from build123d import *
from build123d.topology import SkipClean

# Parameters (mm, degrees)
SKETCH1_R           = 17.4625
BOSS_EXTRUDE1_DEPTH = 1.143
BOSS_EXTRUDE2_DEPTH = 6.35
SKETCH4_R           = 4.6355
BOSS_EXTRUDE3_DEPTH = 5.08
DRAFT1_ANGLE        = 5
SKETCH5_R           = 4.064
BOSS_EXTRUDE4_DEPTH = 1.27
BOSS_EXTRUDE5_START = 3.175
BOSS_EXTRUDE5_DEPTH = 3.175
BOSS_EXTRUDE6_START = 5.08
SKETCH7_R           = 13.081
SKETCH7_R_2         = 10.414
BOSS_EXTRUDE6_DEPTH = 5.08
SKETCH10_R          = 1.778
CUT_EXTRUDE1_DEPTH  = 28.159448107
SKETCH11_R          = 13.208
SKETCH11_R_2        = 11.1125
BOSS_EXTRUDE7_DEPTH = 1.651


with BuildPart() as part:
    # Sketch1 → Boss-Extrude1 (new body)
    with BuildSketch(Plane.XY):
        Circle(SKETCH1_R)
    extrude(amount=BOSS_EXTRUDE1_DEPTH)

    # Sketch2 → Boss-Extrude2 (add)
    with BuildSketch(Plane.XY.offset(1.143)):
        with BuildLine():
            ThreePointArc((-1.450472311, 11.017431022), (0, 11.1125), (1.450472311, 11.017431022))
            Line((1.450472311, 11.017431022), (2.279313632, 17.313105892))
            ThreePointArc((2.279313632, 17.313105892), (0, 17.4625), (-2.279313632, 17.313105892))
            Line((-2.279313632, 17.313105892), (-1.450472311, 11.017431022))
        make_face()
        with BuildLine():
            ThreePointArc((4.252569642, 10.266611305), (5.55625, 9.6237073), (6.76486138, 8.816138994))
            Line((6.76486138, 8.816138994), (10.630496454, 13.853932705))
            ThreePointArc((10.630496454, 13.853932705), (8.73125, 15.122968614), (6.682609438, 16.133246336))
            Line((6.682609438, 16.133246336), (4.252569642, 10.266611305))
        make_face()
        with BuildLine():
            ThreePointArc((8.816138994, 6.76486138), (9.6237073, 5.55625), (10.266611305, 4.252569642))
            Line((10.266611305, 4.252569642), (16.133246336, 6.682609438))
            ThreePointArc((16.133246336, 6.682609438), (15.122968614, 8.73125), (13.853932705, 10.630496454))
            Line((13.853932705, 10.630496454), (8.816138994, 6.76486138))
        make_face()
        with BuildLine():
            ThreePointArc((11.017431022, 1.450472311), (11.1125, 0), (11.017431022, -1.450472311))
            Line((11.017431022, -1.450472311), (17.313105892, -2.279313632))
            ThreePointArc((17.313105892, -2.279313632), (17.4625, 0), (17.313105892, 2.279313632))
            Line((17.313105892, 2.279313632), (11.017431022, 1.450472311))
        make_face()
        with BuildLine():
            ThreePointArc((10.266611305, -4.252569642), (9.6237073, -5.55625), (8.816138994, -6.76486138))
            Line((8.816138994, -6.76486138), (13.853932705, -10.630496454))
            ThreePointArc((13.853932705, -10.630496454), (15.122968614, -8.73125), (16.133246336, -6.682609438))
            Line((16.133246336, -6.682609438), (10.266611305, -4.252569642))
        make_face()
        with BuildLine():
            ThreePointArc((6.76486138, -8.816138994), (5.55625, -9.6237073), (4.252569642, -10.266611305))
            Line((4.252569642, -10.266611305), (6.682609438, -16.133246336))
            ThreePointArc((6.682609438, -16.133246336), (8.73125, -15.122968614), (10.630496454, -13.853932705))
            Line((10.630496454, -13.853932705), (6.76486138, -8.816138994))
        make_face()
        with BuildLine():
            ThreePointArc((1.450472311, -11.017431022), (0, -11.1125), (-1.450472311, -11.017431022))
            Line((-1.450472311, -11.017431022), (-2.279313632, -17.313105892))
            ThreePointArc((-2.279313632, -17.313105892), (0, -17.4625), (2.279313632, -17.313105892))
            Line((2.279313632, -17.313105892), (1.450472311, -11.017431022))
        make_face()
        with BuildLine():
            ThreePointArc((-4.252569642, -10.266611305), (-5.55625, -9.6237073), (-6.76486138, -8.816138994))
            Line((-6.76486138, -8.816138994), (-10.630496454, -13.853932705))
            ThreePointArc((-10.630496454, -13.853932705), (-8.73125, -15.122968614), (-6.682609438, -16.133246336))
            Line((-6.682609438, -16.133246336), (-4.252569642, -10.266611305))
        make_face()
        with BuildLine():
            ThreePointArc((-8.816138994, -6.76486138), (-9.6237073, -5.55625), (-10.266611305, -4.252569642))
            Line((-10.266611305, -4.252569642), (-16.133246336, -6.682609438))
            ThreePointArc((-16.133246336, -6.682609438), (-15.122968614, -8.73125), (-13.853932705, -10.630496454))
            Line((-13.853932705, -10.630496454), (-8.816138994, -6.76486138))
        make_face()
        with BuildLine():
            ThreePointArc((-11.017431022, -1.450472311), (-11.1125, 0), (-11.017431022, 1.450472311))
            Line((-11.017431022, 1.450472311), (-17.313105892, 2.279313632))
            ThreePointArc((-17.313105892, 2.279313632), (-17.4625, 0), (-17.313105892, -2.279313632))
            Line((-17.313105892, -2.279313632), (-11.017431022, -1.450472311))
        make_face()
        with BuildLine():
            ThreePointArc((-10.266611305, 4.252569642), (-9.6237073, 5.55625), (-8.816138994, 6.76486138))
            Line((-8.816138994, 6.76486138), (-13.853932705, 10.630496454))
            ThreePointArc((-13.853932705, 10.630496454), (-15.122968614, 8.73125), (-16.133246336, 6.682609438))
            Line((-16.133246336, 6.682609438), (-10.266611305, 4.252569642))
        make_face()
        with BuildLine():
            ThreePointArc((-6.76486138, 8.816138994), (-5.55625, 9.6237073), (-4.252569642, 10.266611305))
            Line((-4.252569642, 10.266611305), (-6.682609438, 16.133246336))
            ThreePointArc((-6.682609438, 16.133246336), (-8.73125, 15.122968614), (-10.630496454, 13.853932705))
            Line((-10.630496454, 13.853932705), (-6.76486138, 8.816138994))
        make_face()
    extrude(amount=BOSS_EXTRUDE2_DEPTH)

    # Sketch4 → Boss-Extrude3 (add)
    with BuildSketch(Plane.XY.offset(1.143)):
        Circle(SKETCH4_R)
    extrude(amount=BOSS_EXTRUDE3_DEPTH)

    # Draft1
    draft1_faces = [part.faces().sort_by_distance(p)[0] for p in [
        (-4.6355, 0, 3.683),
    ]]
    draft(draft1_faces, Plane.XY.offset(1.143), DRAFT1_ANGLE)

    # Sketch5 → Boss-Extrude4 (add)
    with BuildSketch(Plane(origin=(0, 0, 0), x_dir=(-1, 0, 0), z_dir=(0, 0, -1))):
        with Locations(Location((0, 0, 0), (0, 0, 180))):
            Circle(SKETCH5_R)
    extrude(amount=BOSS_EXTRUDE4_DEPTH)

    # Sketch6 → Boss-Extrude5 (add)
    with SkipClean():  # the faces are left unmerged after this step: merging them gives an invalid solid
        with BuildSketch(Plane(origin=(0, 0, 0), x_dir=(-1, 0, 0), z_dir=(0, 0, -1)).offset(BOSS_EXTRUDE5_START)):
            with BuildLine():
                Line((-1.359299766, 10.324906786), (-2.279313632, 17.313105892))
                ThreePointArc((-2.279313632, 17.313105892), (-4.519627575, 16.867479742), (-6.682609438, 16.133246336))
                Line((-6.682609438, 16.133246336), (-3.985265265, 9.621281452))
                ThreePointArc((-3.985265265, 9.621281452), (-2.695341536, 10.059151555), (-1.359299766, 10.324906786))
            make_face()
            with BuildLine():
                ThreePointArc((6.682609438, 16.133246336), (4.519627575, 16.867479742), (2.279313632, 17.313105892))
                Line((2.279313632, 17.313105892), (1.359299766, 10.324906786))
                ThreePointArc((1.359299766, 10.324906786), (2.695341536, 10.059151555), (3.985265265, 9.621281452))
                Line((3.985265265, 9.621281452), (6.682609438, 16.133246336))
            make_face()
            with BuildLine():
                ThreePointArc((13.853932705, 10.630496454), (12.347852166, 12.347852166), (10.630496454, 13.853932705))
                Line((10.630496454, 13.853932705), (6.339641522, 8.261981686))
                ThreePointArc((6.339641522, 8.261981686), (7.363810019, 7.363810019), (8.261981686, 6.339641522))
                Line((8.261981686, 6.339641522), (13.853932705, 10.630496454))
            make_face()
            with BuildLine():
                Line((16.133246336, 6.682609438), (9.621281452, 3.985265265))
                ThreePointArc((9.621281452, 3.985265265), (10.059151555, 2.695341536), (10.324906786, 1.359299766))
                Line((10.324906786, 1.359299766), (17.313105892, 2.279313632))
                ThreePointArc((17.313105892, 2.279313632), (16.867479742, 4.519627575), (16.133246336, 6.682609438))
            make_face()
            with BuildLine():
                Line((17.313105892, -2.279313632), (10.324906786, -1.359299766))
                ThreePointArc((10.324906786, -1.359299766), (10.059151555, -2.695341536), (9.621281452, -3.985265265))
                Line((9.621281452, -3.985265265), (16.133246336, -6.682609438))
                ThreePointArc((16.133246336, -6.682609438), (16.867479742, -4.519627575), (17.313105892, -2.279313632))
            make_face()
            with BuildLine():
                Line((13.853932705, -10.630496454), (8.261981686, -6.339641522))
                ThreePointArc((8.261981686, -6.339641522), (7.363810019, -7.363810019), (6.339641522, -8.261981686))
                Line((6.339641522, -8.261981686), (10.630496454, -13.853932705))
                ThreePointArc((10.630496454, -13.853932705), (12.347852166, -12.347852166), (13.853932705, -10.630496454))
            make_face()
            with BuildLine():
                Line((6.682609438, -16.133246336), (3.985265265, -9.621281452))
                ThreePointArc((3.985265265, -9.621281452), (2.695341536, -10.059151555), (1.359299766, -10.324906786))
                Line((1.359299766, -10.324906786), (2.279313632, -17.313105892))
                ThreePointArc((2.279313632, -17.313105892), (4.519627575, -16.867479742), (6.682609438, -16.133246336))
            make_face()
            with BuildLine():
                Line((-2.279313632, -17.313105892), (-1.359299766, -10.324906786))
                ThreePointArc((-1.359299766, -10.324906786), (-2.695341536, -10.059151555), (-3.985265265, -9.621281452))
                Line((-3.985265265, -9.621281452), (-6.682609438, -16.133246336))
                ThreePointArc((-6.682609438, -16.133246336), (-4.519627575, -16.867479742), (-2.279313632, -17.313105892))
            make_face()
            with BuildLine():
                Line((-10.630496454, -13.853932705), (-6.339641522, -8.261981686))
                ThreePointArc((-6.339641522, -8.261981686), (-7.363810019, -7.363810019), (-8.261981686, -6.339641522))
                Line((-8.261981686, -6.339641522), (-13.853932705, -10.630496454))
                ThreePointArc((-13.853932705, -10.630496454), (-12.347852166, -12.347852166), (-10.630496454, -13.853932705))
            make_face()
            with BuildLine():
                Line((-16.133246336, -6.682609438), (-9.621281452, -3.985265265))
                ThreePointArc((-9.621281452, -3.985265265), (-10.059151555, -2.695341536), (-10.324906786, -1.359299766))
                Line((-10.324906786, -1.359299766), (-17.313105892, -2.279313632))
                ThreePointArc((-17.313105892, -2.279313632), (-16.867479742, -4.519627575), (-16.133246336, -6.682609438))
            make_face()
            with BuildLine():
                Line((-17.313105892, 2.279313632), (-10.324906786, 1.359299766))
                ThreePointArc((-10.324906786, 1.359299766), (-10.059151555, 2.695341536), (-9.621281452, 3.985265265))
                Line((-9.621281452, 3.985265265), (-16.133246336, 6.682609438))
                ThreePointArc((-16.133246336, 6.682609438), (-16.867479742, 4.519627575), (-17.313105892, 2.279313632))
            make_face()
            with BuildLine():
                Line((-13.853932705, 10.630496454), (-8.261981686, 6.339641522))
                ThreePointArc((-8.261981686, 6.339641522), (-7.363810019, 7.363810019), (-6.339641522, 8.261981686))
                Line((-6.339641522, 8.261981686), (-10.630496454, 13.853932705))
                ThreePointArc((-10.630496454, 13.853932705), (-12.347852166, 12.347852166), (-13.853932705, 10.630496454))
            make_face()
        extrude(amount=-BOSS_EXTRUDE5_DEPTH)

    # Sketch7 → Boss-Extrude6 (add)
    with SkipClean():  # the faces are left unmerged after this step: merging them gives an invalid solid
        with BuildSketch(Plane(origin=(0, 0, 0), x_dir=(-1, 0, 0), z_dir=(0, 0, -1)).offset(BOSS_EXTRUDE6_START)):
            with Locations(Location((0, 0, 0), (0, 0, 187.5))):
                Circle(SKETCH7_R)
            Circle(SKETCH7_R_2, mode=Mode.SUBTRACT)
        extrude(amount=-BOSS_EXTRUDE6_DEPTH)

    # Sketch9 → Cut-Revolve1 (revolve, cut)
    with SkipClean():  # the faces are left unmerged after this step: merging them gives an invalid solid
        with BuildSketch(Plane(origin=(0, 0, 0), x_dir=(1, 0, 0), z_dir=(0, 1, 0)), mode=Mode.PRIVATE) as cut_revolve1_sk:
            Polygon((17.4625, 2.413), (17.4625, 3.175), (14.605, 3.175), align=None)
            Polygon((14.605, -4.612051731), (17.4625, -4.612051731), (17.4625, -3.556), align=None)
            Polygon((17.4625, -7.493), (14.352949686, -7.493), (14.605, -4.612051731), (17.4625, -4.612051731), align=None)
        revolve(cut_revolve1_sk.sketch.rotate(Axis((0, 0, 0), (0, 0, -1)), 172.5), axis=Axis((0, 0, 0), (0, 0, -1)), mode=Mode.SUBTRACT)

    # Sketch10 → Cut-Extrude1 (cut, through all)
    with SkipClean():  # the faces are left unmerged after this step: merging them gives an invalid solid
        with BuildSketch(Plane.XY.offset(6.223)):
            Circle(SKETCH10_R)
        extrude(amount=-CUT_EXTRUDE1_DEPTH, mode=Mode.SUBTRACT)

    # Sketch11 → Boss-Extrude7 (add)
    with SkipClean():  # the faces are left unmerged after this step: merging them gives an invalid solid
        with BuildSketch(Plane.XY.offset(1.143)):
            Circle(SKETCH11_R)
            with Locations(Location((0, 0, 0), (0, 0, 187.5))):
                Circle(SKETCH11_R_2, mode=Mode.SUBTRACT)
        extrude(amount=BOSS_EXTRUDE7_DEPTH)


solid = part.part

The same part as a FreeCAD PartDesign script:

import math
import FreeCAD as App
import Part
import Sketcher

V = App.Vector
Q = App.Units.Quantity


def faces_at(feature, points):
    """Names of the faces that lie closest to the given points."""
    faces = feature.Shape.Faces
    near = lambda p: min(range(len(faces)), key=lambda i: faces[i].distToShape(Part.Vertex(*p))[0])
    return sorted({f"Face{near(p) + 1}" for p in points})


def add_polygon(sketch, points):
    """Adds a closed chain of lines whose ends are joined by coincident constraints."""
    first, n = sketch.GeometryCount, len(points)
    for a, b in zip(points, points[1:] + points[:1]):
        sketch.addGeometry(Part.LineSegment(App.Vector(*a, 0), App.Vector(*b, 0)), False)
    for i in range(n):
        sketch.addConstraint(Sketcher.Constraint("Coincident", first + i, 2, first + (i + 1) % n, 1))

doc = App.newDocument("Part")
body = doc.addObject("PartDesign::Body", "Body")

# Sketch on XY plane
sketch1 = body.newObject("Sketcher::SketchObject", "Sketch")
sketch1.AttachmentSupport = (doc.getObject("XY_Plane"), [""])
sketch1.MapMode = "FlatFace"
sketch1.addGeometry(Part.Circle(V(0, 0, 0), V(0, 0, 1), 17.4625), False)
sketch1.addConstraint([
    Sketcher.Constraint("Coincident", 0, 3, -1, 1),
    Sketcher.Constraint("Diameter", 0, Q("1.375 in")),
])
pad1 = body.newObject("PartDesign::Pad", "Pad")
pad1.Profile = sketch1
pad1.Length = Q("0.045 in")

# Sketch on XY plane
sketch2 = body.newObject("Sketcher::SketchObject", "Sketch001")
sketch2.AttachmentSupport = (doc.getObject("XY_Plane"), [""])
sketch2.MapMode = "FlatFace"
sketch2.AttachmentOffset = App.Placement(V(0, 0, 0.045 * 25.4), App.Rotation())
sketch2.addGeometry([
    Part.ArcOfCircle(Part.Circle(V(0, 0, 0), V(0, 0, 1), 11.1125), math.radians(82.5), math.radians(97.5)),  # 0
    Part.LineSegment(V(1.450472, 11.017431, 0), V(2.279314, 17.313106, 0)),  # 1
    Part.ArcOfCircle(Part.Circle(V(0, 0, 0), V(0, 0, 1), 17.4625), math.radians(82.5), math.radians(97.5)),  # 2
    Part.LineSegment(V(-2.279314, 17.313106, 0), V(-1.450472, 11.017431, 0)),  # 3
    Part.ArcOfCircle(Part.Circle(V(0, 0, 0), V(0, 0, 1), 11.1125), math.radians(52.5), math.radians(67.5)),  # 4
    Part.LineSegment(V(6.764861, 8.816139, 0), V(10.630496, 13.853933, 0)),  # 5
    Part.ArcOfCircle(Part.Circle(V(0, 0, 0), V(0, 0, 1), 17.4625), math.radians(52.5), math.radians(67.5)),  # 6
    Part.LineSegment(V(6.682609, 16.133246, 0), V(4.25257, 10.266611, 0)),  # 7
    Part.ArcOfCircle(Part.Circle(V(0, 0, 0), V(0, 0, 1), 11.1125), math.radians(22.5), math.radians(37.5)),  # 8
    Part.LineSegment(V(10.266611, 4.25257, 0), V(16.133246, 6.682609, 0)),  # 9
    Part.ArcOfCircle(Part.Circle(V(0, 0, 0), V(0, 0, 1), 17.4625), math.radians(22.5), math.radians(37.5)),  # 10
    Part.LineSegment(V(13.853933, 10.630496, 0), V(8.816139, 6.764861, 0)),  # 11
    Part.ArcOfCircle(Part.Circle(V(0, 0, 0), V(0, 0, 1), 11.1125), math.radians(-7.5), math.radians(7.5)),  # 12
    Part.LineSegment(V(11.017431, -1.450472, 0), V(17.313106, -2.279314, 0)),  # 13
    Part.ArcOfCircle(Part.Circle(V(0, 0, 0), V(0, 0, 1), 17.4625), math.radians(-7.5), math.radians(7.5)),  # 14
    Part.LineSegment(V(17.313106, 2.279314, 0), V(11.017431, 1.450472, 0)),  # 15
    Part.ArcOfCircle(Part.Circle(V(0, 0, 0), V(0, 0, 1), 11.1125), math.radians(-37.5), math.radians(-22.5)),  # 16
    Part.LineSegment(V(8.816139, -6.764861, 0), V(13.853933, -10.630496, 0)),  # 17
    Part.ArcOfCircle(Part.Circle(V(0, 0, 0), V(0, 0, 1), 17.4625), math.radians(-37.5), math.radians(-22.5)),  # 18
    Part.LineSegment(V(16.133246, -6.682609, 0), V(10.266611, -4.25257, 0)),  # 19
    Part.ArcOfCircle(Part.Circle(V(0, 0, 0), V(0, 0, 1), 11.1125), math.radians(-67.5), math.radians(-52.5)),  # 20
    Part.LineSegment(V(4.25257, -10.266611, 0), V(6.682609, -16.133246, 0)),  # 21
    Part.ArcOfCircle(Part.Circle(V(0, 0, 0), V(0, 0, 1), 17.4625), math.radians(-67.5), math.radians(-52.5)),  # 22
    Part.LineSegment(V(10.630496, -13.853933, 0), V(6.764861, -8.816139, 0)),  # 23
    Part.ArcOfCircle(Part.Circle(V(0, 0, 0), V(0, 0, 1), 11.1125), math.radians(-97.5), math.radians(-82.5)),  # 24
    Part.LineSegment(V(-1.450472, -11.017431, 0), V(-2.279314, -17.313106, 0)),  # 25
    Part.ArcOfCircle(Part.Circle(V(0, 0, 0), V(0, 0, 1), 17.4625), math.radians(-97.5), math.radians(-82.5)),  # 26
    Part.LineSegment(V(2.279314, -17.313106, 0), V(1.450472, -11.017431, 0)),  # 27
    Part.ArcOfCircle(Part.Circle(V(0, 0, 0), V(0, 0, 1), 11.1125), math.radians(-127.5), math.radians(-112.5)),  # 28
    Part.LineSegment(V(-6.764861, -8.816139, 0), V(-10.630496, -13.853933, 0)),  # 29
    Part.ArcOfCircle(Part.Circle(V(0, 0, 0), V(0, 0, 1), 17.4625), math.radians(-127.5), math.radians(-112.5)),  # 30
    Part.LineSegment(V(-6.682609, -16.133246, 0), V(-4.25257, -10.266611, 0)),  # 31
    Part.ArcOfCircle(Part.Circle(V(0, 0, 0), V(0, 0, 1), 11.1125), math.radians(-157.5), math.radians(-142.5)),  # 32
    Part.LineSegment(V(-10.266611, -4.25257, 0), V(-16.133246, -6.682609, 0)),  # 33
    Part.ArcOfCircle(Part.Circle(V(0, 0, 0), V(0, 0, 1), 17.4625), math.radians(-157.5), math.radians(-142.5)),  # 34
    Part.LineSegment(V(-13.853933, -10.630496, 0), V(-8.816139, -6.764861, 0)),  # 35
    Part.ArcOfCircle(Part.Circle(V(0, 0, 0), V(0, 0, 1), 11.1125), math.radians(172.5), math.radians(187.5)),  # 36
    Part.LineSegment(V(-11.017431, 1.450472, 0), V(-17.313106, 2.279314, 0)),  # 37
    Part.ArcOfCircle(Part.Circle(V(0, 0, 0), V(0, 0, 1), 17.4625), math.radians(172.5), math.radians(187.5)),  # 38
    Part.LineSegment(V(-17.313106, -2.279314, 0), V(-11.017431, -1.450472, 0)),  # 39
    Part.ArcOfCircle(Part.Circle(V(0, 0, 0), V(0, 0, 1), 11.1125), math.radians(142.5), math.radians(157.5)),  # 40
    Part.LineSegment(V(-8.816139, 6.764861, 0), V(-13.853933, 10.630496, 0)),  # 41
    Part.ArcOfCircle(Part.Circle(V(0, 0, 0), V(0, 0, 1), 17.4625), math.radians(142.5), math.radians(157.5)),  # 42
    Part.LineSegment(V(-16.133246, 6.682609, 0), V(-10.266611, 4.25257, 0)),  # 43
    Part.ArcOfCircle(Part.Circle(V(0, 0, 0), V(0, 0, 1), 11.1125), math.radians(112.5), math.radians(127.5)),  # 44
    Part.LineSegment(V(-4.25257, 10.266611, 0), V(-6.682609, 16.133246, 0)),  # 45
    Part.ArcOfCircle(Part.Circle(V(0, 0, 0), V(0, 0, 1), 17.4625), math.radians(112.5), math.radians(127.5)),  # 46
    Part.LineSegment(V(-10.630496, 13.853933, 0), V(-6.764861, 8.816139, 0)),  # 47
], False)
sketch2.addConstraint([
    Sketcher.Constraint("Coincident", 0, 1, 1, 1),
    Sketcher.Constraint("Coincident", 1, 2, 2, 1),
    Sketcher.Constraint("Coincident", 2, 2, 3, 1),
    Sketcher.Constraint("Coincident", 3, 2, 0, 2),
    Sketcher.Constraint("Coincident", 4, 1, 5, 1),
    Sketcher.Constraint("Coincident", 5, 2, 6, 1),
    Sketcher.Constraint("Coincident", 6, 2, 7, 1),
    Sketcher.Constraint("Coincident", 7, 2, 4, 2),
    Sketcher.Constraint("Coincident", 8, 1, 9, 1),
    Sketcher.Constraint("Coincident", 9, 2, 10, 1),
    Sketcher.Constraint("Coincident", 10, 2, 11, 1),
    Sketcher.Constraint("Coincident", 11, 2, 8, 2),
    Sketcher.Constraint("Coincident", 12, 1, 13, 1),
    Sketcher.Constraint("Coincident", 13, 2, 14, 1),
    Sketcher.Constraint("Coincident", 14, 2, 15, 1),
    Sketcher.Constraint("Coincident", 15, 2, 12, 2),
    Sketcher.Constraint("Coincident", 16, 1, 17, 1),
    Sketcher.Constraint("Coincident", 17, 2, 18, 1),
    Sketcher.Constraint("Coincident", 18, 2, 19, 1),
    Sketcher.Constraint("Coincident", 19, 2, 16, 2),
    Sketcher.Constraint("Coincident", 20, 1, 21, 1),
    Sketcher.Constraint("Coincident", 21, 2, 22, 1),
    Sketcher.Constraint("Coincident", 22, 2, 23, 1),
    Sketcher.Constraint("Coincident", 23, 2, 20, 2),
    Sketcher.Constraint("Coincident", 24, 1, 25, 1),
    Sketcher.Constraint("Coincident", 25, 2, 26, 1),
    Sketcher.Constraint("Coincident", 26, 2, 27, 1),
    Sketcher.Constraint("Coincident", 27, 2, 24, 2),
    Sketcher.Constraint("Coincident", 28, 1, 29, 1),
    Sketcher.Constraint("Coincident", 29, 2, 30, 1),
    Sketcher.Constraint("Coincident", 30, 2, 31, 1),
    Sketcher.Constraint("Coincident", 31, 2, 28, 2),
    Sketcher.Constraint("Coincident", 32, 1, 33, 1),
    Sketcher.Constraint("Coincident", 33, 2, 34, 1),
    Sketcher.Constraint("Coincident", 34, 2, 35, 1),
    Sketcher.Constraint("Coincident", 35, 2, 32, 2),
    Sketcher.Constraint("Coincident", 36, 1, 37, 1),
    Sketcher.Constraint("Coincident", 37, 2, 38, 1),
    Sketcher.Constraint("Coincident", 38, 2, 39, 1),
    Sketcher.Constraint("Coincident", 39, 2, 36, 2),
    Sketcher.Constraint("Coincident", 40, 1, 41, 1),
    Sketcher.Constraint("Coincident", 41, 2, 42, 1),
    Sketcher.Constraint("Coincident", 42, 2, 43, 1),
    Sketcher.Constraint("Coincident", 43, 2, 40, 2),
    Sketcher.Constraint("Coincident", 44, 1, 45, 1),
    Sketcher.Constraint("Coincident", 45, 2, 46, 1),
    Sketcher.Constraint("Coincident", 46, 2, 47, 1),
    Sketcher.Constraint("Coincident", 47, 2, 44, 2),
    Sketcher.Constraint("Coincident", 0, 3, -1, 1),
    Sketcher.Constraint("Coincident", 2, 3, -1, 1),
    Sketcher.Constraint("Coincident", 4, 3, -1, 1),
    Sketcher.Constraint("Coincident", 6, 3, -1, 1),
    Sketcher.Constraint("Coincident", 8, 3, -1, 1),
    Sketcher.Constraint("Coincident", 10, 3, -1, 1),
    Sketcher.Constraint("Coincident", 12, 3, -1, 1),
    Sketcher.Constraint("Coincident", 14, 3, -1, 1),
    Sketcher.Constraint("Coincident", 16, 3, -1, 1),
    Sketcher.Constraint("Coincident", 18, 3, -1, 1),
    Sketcher.Constraint("Coincident", 20, 3, -1, 1),
    Sketcher.Constraint("Coincident", 22, 3, -1, 1),
    Sketcher.Constraint("Coincident", 24, 3, -1, 1),
    Sketcher.Constraint("Coincident", 26, 3, -1, 1),
    Sketcher.Constraint("Coincident", 28, 3, -1, 1),
    Sketcher.Constraint("Coincident", 30, 3, -1, 1),
    Sketcher.Constraint("Coincident", 32, 3, -1, 1),
    Sketcher.Constraint("Coincident", 34, 3, -1, 1),
    Sketcher.Constraint("Coincident", 36, 3, -1, 1),
    Sketcher.Constraint("Coincident", 38, 3, -1, 1),
    Sketcher.Constraint("Coincident", 40, 3, -1, 1),
    Sketcher.Constraint("Coincident", 42, 3, -1, 1),
    Sketcher.Constraint("Coincident", 44, 3, -1, 1),
    Sketcher.Constraint("Coincident", 46, 3, -1, 1),
    Sketcher.Constraint("Equal", 0, 4),
    Sketcher.Constraint("Equal", 2, 6),
    Sketcher.Constraint("Equal", 4, 8),
    Sketcher.Constraint("Equal", 6, 10),
    Sketcher.Constraint("Equal", 8, 12),
    Sketcher.Constraint("Equal", 10, 14),
    Sketcher.Constraint("Equal", 12, 16),
    Sketcher.Constraint("Equal", 14, 18),
    Sketcher.Constraint("Equal", 16, 20),
    Sketcher.Constraint("Equal", 18, 22),
    Sketcher.Constraint("Equal", 20, 24),
    Sketcher.Constraint("Equal", 22, 26),
    Sketcher.Constraint("Equal", 24, 28),
    Sketcher.Constraint("Equal", 26, 30),
    Sketcher.Constraint("Equal", 28, 32),
    Sketcher.Constraint("Equal", 30, 34),
    Sketcher.Constraint("Equal", 32, 36),
    Sketcher.Constraint("Equal", 34, 38),
    Sketcher.Constraint("Equal", 36, 40),
    Sketcher.Constraint("Equal", 38, 42),
    Sketcher.Constraint("Equal", 40, 44),
    Sketcher.Constraint("Equal", 42, 46),
    Sketcher.Constraint("Perpendicular", 1, 13),
    Sketcher.Constraint("Perpendicular", 3, 15),
    Sketcher.Constraint("Perpendicular", 5, 17),
    Sketcher.Constraint("Perpendicular", 7, 19),
    Sketcher.Constraint("Perpendicular", 9, 21),
    Sketcher.Constraint("Perpendicular", 11, 23),
    Sketcher.Constraint("Perpendicular", 13, 25),
    Sketcher.Constraint("Perpendicular", 15, 27),
    Sketcher.Constraint("Perpendicular", 17, 29),
    Sketcher.Constraint("Perpendicular", 19, 31),
    Sketcher.Constraint("Perpendicular", 21, 33),
    Sketcher.Constraint("Perpendicular", 23, 35),
    Sketcher.Constraint("Perpendicular", 25, 37),
    Sketcher.Constraint("Perpendicular", 27, 39),
    Sketcher.Constraint("Perpendicular", 29, 41),
    Sketcher.Constraint("Perpendicular", 31, 43),
    Sketcher.Constraint("Perpendicular", 33, 45),
    Sketcher.Constraint("Perpendicular", 35, 47),
    Sketcher.Constraint("Horizontal", 1, 2, 2, 2),
    Sketcher.Constraint("Horizontal", 0, 1, 3, 2),
    Sketcher.Constraint("Horizontal", 25, 2, 26, 2),
    Sketcher.Constraint("Horizontal", 23, 2, 28, 1),
    Sketcher.Constraint("Horizontal", 22, 2, 29, 2),
    Sketcher.Constraint("Horizontal", 21, 2, 30, 2),
    Sketcher.Constraint("Horizontal", 20, 1, 31, 2),
    Sketcher.Constraint("Horizontal", 19, 2, 32, 1),
    Sketcher.Constraint("Horizontal", 17, 2, 34, 2),
    Sketcher.Constraint("Horizontal", 15, 2, 36, 1),
    Sketcher.Constraint("Horizontal", 13, 2, 38, 2),
    Sketcher.Constraint("Horizontal", 11, 2, 40, 1),
    Sketcher.Constraint("Horizontal", 9, 2, 42, 2),
    Sketcher.Constraint("Horizontal", 7, 2, 44, 1),
    Sketcher.Constraint("Horizontal", 5, 2, 46, 2),
    Sketcher.Constraint("Vertical", 13, 2, 14, 2),
    Sketcher.Constraint("Vertical", 11, 2, 16, 1),
    Sketcher.Constraint("Vertical", 9, 2, 18, 2),
    Sketcher.Constraint("Vertical", 7, 2, 20, 1),
    Sketcher.Constraint("Vertical", 5, 2, 22, 2),
    Sketcher.Constraint("Vertical", 3, 2, 24, 1),
    Sketcher.Constraint("Radius", 0, Q("0.4375 in")),
    Sketcher.Constraint("Radius", 2, Q("0.6875 in")),
    Sketcher.Constraint("Angle", 1, Q("82.5 deg")),
    Sketcher.Constraint("Angle", 5, Q("52.5 deg")),
    Sketcher.Constraint("Angle", 7, Q("-112.5 deg")),
    Sketcher.Constraint("DistanceY", -1, 1, 0, 1, Q("11.017431 mm")),
    Sketcher.Constraint("DistanceX", -1, 1, 4, 1, Q("6.764861 mm")),
    Sketcher.Constraint("DistanceX", -1, 1, 6, 2, Q("6.682609 mm")),
    Sketcher.Constraint("DistanceX", -1, 1, 8, 1, Q("10.266611 mm")),
    Sketcher.Constraint("DistanceX", -1, 1, 11, 2, Q("8.816139 mm")),
    Sketcher.Constraint("DistanceX", -1, 1, 12, 1, Q("11.017431 mm")),
])
pad2 = body.newObject("PartDesign::Pad", "Pad001")
pad2.Profile = sketch2
pad2.Length = Q("0.25 in")

# Sketch on XY plane
sketch3 = body.newObject("Sketcher::SketchObject", "Sketch002")
sketch3.AttachmentSupport = (doc.getObject("XY_Plane"), [""])
sketch3.MapMode = "FlatFace"
sketch3.AttachmentOffset = App.Placement(V(0, 0, 0.045 * 25.4), App.Rotation())
sketch3.addGeometry(Part.Circle(V(0, 0, 0), V(0, 0, 1), 4.6355), False)
sketch3.addConstraint([
    Sketcher.Constraint("Coincident", 0, 3, -1, 1),
    Sketcher.Constraint("Diameter", 0, Q("0.365 in")),
])
pad3 = body.newObject("PartDesign::Pad", "Pad002")
pad3.Profile = sketch3
pad3.Length = Q("0.2 in")
doc.recompute()

datumplane = body.newObject("PartDesign::Plane", "DatumPlane")
datumplane.AttachmentSupport = (doc.getObject("XY_Plane"), [""])
datumplane.MapMode = "FlatFace"
datumplane.AttachmentOffset = App.Placement(V(0, 0, 0.045 * 25.4), App.Rotation())
draft = body.newObject("PartDesign::Draft", "Draft")
draft.Base = (pad3, faces_at(pad3, [(-4.636, 0, 3.683)]))
draft.NeutralPlane = (datumplane, [""])
draft.Angle = 5
draft.Reversed = False

# Sketch on XY plane
sketch4 = body.newObject("Sketcher::SketchObject", "Sketch003")
sketch4.AttachmentSupport = (doc.getObject("XY_Plane"), [""])
sketch4.MapMode = "FlatFace"
sketch4.addGeometry(Part.Circle(V(0, 0, 0), V(0, 0, 1), 4.064), False)
sketch4.addConstraint([
    Sketcher.Constraint("Coincident", 0, 3, -1, 1),
    Sketcher.Constraint("Diameter", 0, Q("0.32 in")),
])
pad4 = body.newObject("PartDesign::Pad", "Pad003")
pad4.Profile = sketch4
pad4.Length = Q("0.05 in")
pad4.Reversed = True

# Sketch on XY plane
sketch5 = body.newObject("Sketcher::SketchObject", "Sketch004")
sketch5.AttachmentSupport = (doc.getObject("XY_Plane"), [""])
sketch5.MapMode = "FlatFace"
sketch5.AttachmentOffset = App.Placement(V(0, 0, -0.125 * 25.4), App.Rotation())
sketch5.addGeometry([
    Part.LineSegment(V(1.3593, 10.324907, 0), V(2.279314, 17.313106, 0)),  # 0
    Part.ArcOfCircle(Part.Circle(V(0, 0, 0), V(0, 0, 1), 17.4625), math.radians(67.5), math.radians(82.5)),  # 1
    Part.LineSegment(V(6.682609, 16.133246, 0), V(3.985265, 9.621281, 0)),  # 2
    Part.ArcOfCircle(Part.Circle(V(0, 0, 0), V(0, 0, 1), 10.414), math.radians(67.5), math.radians(82.5)),  # 3
    Part.ArcOfCircle(Part.Circle(V(0, 0, 0), V(0, 0, 1), 17.4625), math.radians(97.5), math.radians(112.5)),  # 4
    Part.LineSegment(V(-2.279314, 17.313106, 0), V(-1.3593, 10.324907, 0)),  # 5
    Part.ArcOfCircle(Part.Circle(V(0, 0, 0), V(0, 0, 1), 10.414), math.radians(97.5), math.radians(112.5)),  # 6
    Part.LineSegment(V(-3.985265, 9.621281, 0), V(-6.682609, 16.133246, 0)),  # 7
    Part.ArcOfCircle(Part.Circle(V(0, 0, 0), V(0, 0, 1), 17.4625), math.radians(127.5), math.radians(142.5)),  # 8
    Part.LineSegment(V(-10.630496, 13.853933, 0), V(-6.339642, 8.261982, 0)),  # 9
    Part.ArcOfCircle(Part.Circle(V(0, 0, 0), V(0, 0, 1), 10.414), math.radians(127.5), math.radians(142.5)),  # 10
    Part.LineSegment(V(-8.261982, 6.339642, 0), V(-13.853933, 10.630496, 0)),  # 11
    Part.LineSegment(V(-16.133246, 6.682609, 0), V(-9.621281, 3.985265, 0)),  # 12
    Part.ArcOfCircle(Part.Circle(V(0, 0, 0), V(0, 0, 1), 10.414), math.radians(157.5), math.radians(172.5)),  # 13
    Part.LineSegment(V(-10.324907, 1.3593, 0), V(-17.313106, 2.279314, 0)),  # 14
    Part.ArcOfCircle(Part.Circle(V(0, 0, 0), V(0, 0, 1), 17.4625), math.radians(157.5), math.radians(172.5)),  # 15
    Part.LineSegment(V(-17.313106, -2.279314, 0), V(-10.324907, -1.3593, 0)),  # 16
    Part.ArcOfCircle(Part.Circle(V(0, 0, 0), V(0, 0, 1), 10.414), math.radians(-172.5), math.radians(-157.5)),  # 17
    Part.LineSegment(V(-9.621281, -3.985265, 0), V(-16.133246, -6.682609, 0)),  # 18
    Part.ArcOfCircle(Part.Circle(V(0, 0, 0), V(0, 0, 1), 17.4625), math.radians(-172.5), math.radians(-157.5)),  # 19
    Part.LineSegment(V(-13.853933, -10.630496, 0), V(-8.261982, -6.339642, 0)),  # 20
    Part.ArcOfCircle(Part.Circle(V(0, 0, 0), V(0, 0, 1), 10.414), math.radians(-142.5), math.radians(-127.5)),  # 21
    Part.LineSegment(V(-6.339642, -8.261982, 0), V(-10.630496, -13.853933, 0)),  # 22
    Part.ArcOfCircle(Part.Circle(V(0, 0, 0), V(0, 0, 1), 17.4625), math.radians(-142.5), math.radians(-127.5)),  # 23
    Part.LineSegment(V(-6.682609, -16.133246, 0), V(-3.985265, -9.621281, 0)),  # 24
    Part.ArcOfCircle(Part.Circle(V(0, 0, 0), V(0, 0, 1), 10.414), math.radians(-112.5), math.radians(-97.5)),  # 25
    Part.LineSegment(V(-1.3593, -10.324907, 0), V(-2.279314, -17.313106, 0)),  # 26
    Part.ArcOfCircle(Part.Circle(V(0, 0, 0), V(0, 0, 1), 17.4625), math.radians(-112.5), math.radians(-97.5)),  # 27
    Part.LineSegment(V(2.279314, -17.313106, 0), V(1.3593, -10.324907, 0)),  # 28
    Part.ArcOfCircle(Part.Circle(V(0, 0, 0), V(0, 0, 1), 10.414), math.radians(-82.5), math.radians(-67.5)),  # 29
    Part.LineSegment(V(3.985265, -9.621281, 0), V(6.682609, -16.133246, 0)),  # 30
    Part.ArcOfCircle(Part.Circle(V(0, 0, 0), V(0, 0, 1), 17.4625), math.radians(-82.5), math.radians(-67.5)),  # 31
    Part.LineSegment(V(10.630496, -13.853933, 0), V(6.339642, -8.261982, 0)),  # 32
    Part.ArcOfCircle(Part.Circle(V(0, 0, 0), V(0, 0, 1), 10.414), math.radians(-52.5), math.radians(-37.5)),  # 33
    Part.LineSegment(V(8.261982, -6.339642, 0), V(13.853933, -10.630496, 0)),  # 34
    Part.ArcOfCircle(Part.Circle(V(0, 0, 0), V(0, 0, 1), 17.4625), math.radians(-52.5), math.radians(-37.5)),  # 35
    Part.LineSegment(V(16.133246, -6.682609, 0), V(9.621281, -3.985265, 0)),  # 36
    Part.ArcOfCircle(Part.Circle(V(0, 0, 0), V(0, 0, 1), 10.414), math.radians(-22.5), math.radians(-7.5)),  # 37
    Part.LineSegment(V(10.324907, -1.3593, 0), V(17.313106, -2.279314, 0)),  # 38
    Part.ArcOfCircle(Part.Circle(V(0, 0, 0), V(0, 0, 1), 17.4625), math.radians(-22.5), math.radians(-7.5)),  # 39
    Part.LineSegment(V(17.313106, 2.279314, 0), V(10.324907, 1.3593, 0)),  # 40
    Part.ArcOfCircle(Part.Circle(V(0, 0, 0), V(0, 0, 1), 10.414), math.radians(7.5), math.radians(22.5)),  # 41
    Part.LineSegment(V(9.621281, 3.985265, 0), V(16.133246, 6.682609, 0)),  # 42
    Part.ArcOfCircle(Part.Circle(V(0, 0, 0), V(0, 0, 1), 17.4625), math.radians(7.5), math.radians(22.5)),  # 43
    Part.LineSegment(V(13.853933, 10.630496, 0), V(8.261982, 6.339642, 0)),  # 44
    Part.ArcOfCircle(Part.Circle(V(0, 0, 0), V(0, 0, 1), 10.414), math.radians(37.5), math.radians(52.5)),  # 45
    Part.LineSegment(V(6.339642, 8.261982, 0), V(10.630496, 13.853933, 0)),  # 46
    Part.ArcOfCircle(Part.Circle(V(0, 0, 0), V(0, 0, 1), 17.4625), math.radians(37.5), math.radians(52.5)),  # 47
], False)
sketch5.addConstraint([
    Sketcher.Constraint("Coincident", 0, 2, 1, 2),
    Sketcher.Constraint("Coincident", 1, 1, 2, 1),
    Sketcher.Constraint("Coincident", 2, 2, 3, 1),
    Sketcher.Constraint("Coincident", 3, 2, 0, 1),
    Sketcher.Constraint("Coincident", 4, 1, 5, 1),
    Sketcher.Constraint("Coincident", 5, 2, 6, 1),
    Sketcher.Constraint("Coincident", 6, 2, 7, 1),
    Sketcher.Constraint("Coincident", 7, 2, 4, 2),
    Sketcher.Constraint("Coincident", 8, 1, 9, 1),
    Sketcher.Constraint("Coincident", 9, 2, 10, 1),
    Sketcher.Constraint("Coincident", 10, 2, 11, 1),
    Sketcher.Constraint("Coincident", 11, 2, 8, 2),
    Sketcher.Constraint("Coincident", 12, 2, 13, 1),
    Sketcher.Constraint("Coincident", 13, 2, 14, 1),
    Sketcher.Constraint("Coincident", 14, 2, 15, 2),
    Sketcher.Constraint("Coincident", 15, 1, 12, 1),
    Sketcher.Constraint("Coincident", 16, 2, 17, 1),
    Sketcher.Constraint("Coincident", 17, 2, 18, 1),
    Sketcher.Constraint("Coincident", 18, 2, 19, 2),
    Sketcher.Constraint("Coincident", 19, 1, 16, 1),
    Sketcher.Constraint("Coincident", 20, 2, 21, 1),
    Sketcher.Constraint("Coincident", 21, 2, 22, 1),
    Sketcher.Constraint("Coincident", 22, 2, 23, 2),
    Sketcher.Constraint("Coincident", 23, 1, 20, 1),
    Sketcher.Constraint("Coincident", 24, 2, 25, 1),
    Sketcher.Constraint("Coincident", 25, 2, 26, 1),
    Sketcher.Constraint("Coincident", 26, 2, 27, 2),
    Sketcher.Constraint("Coincident", 27, 1, 24, 1),
    Sketcher.Constraint("Coincident", 28, 2, 29, 1),
    Sketcher.Constraint("Coincident", 29, 2, 30, 1),
    Sketcher.Constraint("Coincident", 30, 2, 31, 2),
    Sketcher.Constraint("Coincident", 31, 1, 28, 1),
    Sketcher.Constraint("Coincident", 32, 2, 33, 1),
    Sketcher.Constraint("Coincident", 33, 2, 34, 1),
    Sketcher.Constraint("Coincident", 34, 2, 35, 2),
    Sketcher.Constraint("Coincident", 35, 1, 32, 1),
    Sketcher.Constraint("Coincident", 36, 2, 37, 1),
    Sketcher.Constraint("Coincident", 37, 2, 38, 1),
    Sketcher.Constraint("Coincident", 38, 2, 39, 2),
    Sketcher.Constraint("Coincident", 39, 1, 36, 1),
    Sketcher.Constraint("Coincident", 40, 2, 41, 1),
    Sketcher.Constraint("Coincident", 41, 2, 42, 1),
    Sketcher.Constraint("Coincident", 42, 2, 43, 2),
    Sketcher.Constraint("Coincident", 43, 1, 40, 1),
    Sketcher.Constraint("Coincident", 44, 2, 45, 1),
    Sketcher.Constraint("Coincident", 45, 2, 46, 1),
    Sketcher.Constraint("Coincident", 46, 2, 47, 2),
    Sketcher.Constraint("Coincident", 47, 1, 44, 1),
    Sketcher.Constraint("Coincident", 1, 3, -1, 1),
    Sketcher.Constraint("Coincident", 3, 3, -1, 1),
    Sketcher.Constraint("Coincident", 4, 3, -1, 1),
    Sketcher.Constraint("Coincident", 6, 3, -1, 1),
    Sketcher.Constraint("Coincident", 8, 3, -1, 1),
    Sketcher.Constraint("Coincident", 10, 3, -1, 1),
    Sketcher.Constraint("Coincident", 13, 3, -1, 1),
    Sketcher.Constraint("Coincident", 15, 3, -1, 1),
    Sketcher.Constraint("Coincident", 17, 3, -1, 1),
    Sketcher.Constraint("Coincident", 19, 3, -1, 1),
    Sketcher.Constraint("Coincident", 21, 3, -1, 1),
    Sketcher.Constraint("Coincident", 23, 3, -1, 1),
    Sketcher.Constraint("Coincident", 25, 3, -1, 1),
    Sketcher.Constraint("Coincident", 27, 3, -1, 1),
    Sketcher.Constraint("Coincident", 29, 3, -1, 1),
    Sketcher.Constraint("Coincident", 31, 3, -1, 1),
    Sketcher.Constraint("Coincident", 33, 3, -1, 1),
    Sketcher.Constraint("Coincident", 35, 3, -1, 1),
    Sketcher.Constraint("Coincident", 37, 3, -1, 1),
    Sketcher.Constraint("Coincident", 39, 3, -1, 1),
    Sketcher.Constraint("Coincident", 41, 3, -1, 1),
    Sketcher.Constraint("Coincident", 43, 3, -1, 1),
    Sketcher.Constraint("Coincident", 45, 3, -1, 1),
    Sketcher.Constraint("Coincident", 47, 3, -1, 1),
    Sketcher.Constraint("Equal", 1, 4),
    Sketcher.Constraint("Equal", 3, 6),
    Sketcher.Constraint("Equal", 4, 8),
    Sketcher.Constraint("Equal", 6, 10),
    Sketcher.Constraint("Equal", 10, 13),
    Sketcher.Constraint("Equal", 8, 15),
    Sketcher.Constraint("Equal", 13, 17),
    Sketcher.Constraint("Equal", 15, 19),
    Sketcher.Constraint("Equal", 17, 21),
    Sketcher.Constraint("Equal", 19, 23),
    Sketcher.Constraint("Equal", 21, 25),
    Sketcher.Constraint("Equal", 23, 27),
    Sketcher.Constraint("Equal", 25, 29),
    Sketcher.Constraint("Equal", 27, 31),
    Sketcher.Constraint("Equal", 29, 33),
    Sketcher.Constraint("Equal", 31, 35),
    Sketcher.Constraint("Equal", 33, 37),
    Sketcher.Constraint("Equal", 35, 39),
    Sketcher.Constraint("Equal", 37, 41),
    Sketcher.Constraint("Equal", 39, 43),
    Sketcher.Constraint("Equal", 41, 45),
    Sketcher.Constraint("Equal", 43, 47),
    Sketcher.Constraint("Perpendicular", 2, 12),
    Sketcher.Constraint("Perpendicular", 0, 14),
    Sketcher.Constraint("Perpendicular", 5, 16),
    Sketcher.Constraint("Perpendicular", 7, 18),
    Sketcher.Constraint("Perpendicular", 9, 20),
    Sketcher.Constraint("Perpendicular", 11, 22),
    Sketcher.Constraint("Perpendicular", 12, 24),
    Sketcher.Constraint("Perpendicular", 14, 26),
    Sketcher.Constraint("Perpendicular", 16, 28),
    Sketcher.Constraint("Perpendicular", 18, 30),
    Sketcher.Constraint("Perpendicular", 20, 32),
    Sketcher.Constraint("Perpendicular", 22, 34),
    Sketcher.Constraint("Perpendicular", 24, 36),
    Sketcher.Constraint("Perpendicular", 26, 38),
    Sketcher.Constraint("Perpendicular", 28, 40),
    Sketcher.Constraint("Perpendicular", 30, 42),
    Sketcher.Constraint("Perpendicular", 32, 44),
    Sketcher.Constraint("Perpendicular", 34, 46),
    Sketcher.Constraint("Horizontal", 0, 2, 4, 1),
    Sketcher.Constraint("Horizontal", 3, 2, 5, 2),
    Sketcher.Constraint("Horizontal", 2, 2, 6, 2),
    Sketcher.Constraint("Horizontal", 1, 1, 7, 2),
    Sketcher.Constraint("Horizontal", 25, 2, 28, 2),
    Sketcher.Constraint("Horizontal", 24, 2, 29, 2),
    Sketcher.Constraint("Horizontal", 21, 2, 32, 2),
    Sketcher.Constraint("Horizontal", 20, 2, 33, 2),
    Sketcher.Constraint("Horizontal", 23, 1, 34, 2),
    Sketcher.Constraint("Horizontal", 17, 2, 36, 2),
    Sketcher.Constraint("Horizontal", 16, 2, 37, 2),
    Sketcher.Constraint("Horizontal", 13, 2, 40, 2),
    Sketcher.Constraint("Horizontal", 12, 2, 41, 2),
    Sketcher.Constraint("Horizontal", 10, 2, 44, 2),
    Sketcher.Constraint("Horizontal", 9, 2, 45, 2),
    Sketcher.Constraint("Vertical", 13, 2, 16, 2),
    Sketcher.Constraint("Vertical", 12, 2, 17, 2),
    Sketcher.Constraint("Vertical", 10, 2, 20, 2),
    Sketcher.Constraint("Vertical", 9, 2, 21, 2),
    Sketcher.Constraint("Vertical", 6, 2, 24, 2),
    Sketcher.Constraint("Vertical", 5, 2, 25, 2),
    Sketcher.Constraint("Radius", 3, Q("0.41 in")),
    Sketcher.Constraint("Radius", 1, Q("0.6875 in")),
    Sketcher.Constraint("Angle", 0, Q("82.5 deg")),
    Sketcher.Constraint("Angle", 2, Q("-112.5 deg")),
    Sketcher.Constraint("Angle", 9, Q("-52.5 deg")),
    Sketcher.Constraint("DistanceX", -1, 1, 3, 2, Q("1.3593 mm")),
    Sketcher.Constraint("DistanceY", -1, 1, 13, 2, Q("1.3593 mm")),
    Sketcher.Constraint("DistanceX", -1, 1, 1, 1, Q("6.682609 mm")),
    Sketcher.Constraint("DistanceX", 9, 2, -1, 1, Q("6.339642 mm")),
    Sketcher.Constraint("DistanceX", 10, 2, -1, 1, Q("8.261982 mm")),
    Sketcher.Constraint("DistanceX", 12, 2, -1, 1, Q("9.621281 mm")),
])
pad5 = body.newObject("PartDesign::Pad", "Pad004")
pad5.Profile = sketch5
pad5.Length = Q("0.125 in")

# Sketch on XY plane
sketch6 = body.newObject("Sketcher::SketchObject", "Sketch005")
sketch6.AttachmentSupport = (doc.getObject("XY_Plane"), [""])
sketch6.MapMode = "FlatFace"
sketch6.AttachmentOffset = App.Placement(V(0, 0, -0.2 * 25.4), App.Rotation())
sketch6.addGeometry([
    Part.Circle(V(0, 0, 0), V(0, 0, 1), 13.081),
    Part.Circle(V(0, 0, 0), V(0, 0, 1), 10.414),
], False)
sketch6.addConstraint([
    Sketcher.Constraint("Coincident", 0, 3, -1, 1),
    Sketcher.Constraint("Coincident", 1, 3, -1, 1),
    Sketcher.Constraint("Diameter", 0, Q("1.03 in")),
    Sketcher.Constraint("Diameter", 1, Q("0.82 in")),
])
pad6 = body.newObject("PartDesign::Pad", "Pad005")
pad6.Profile = sketch6
pad6.Length = Q("0.2 in")

# Sketch on XZ plane
sketch7 = body.newObject("Sketcher::SketchObject", "Sketch006")
sketch7.AttachmentSupport = (doc.getObject("XZ_Plane"), [""])
sketch7.MapMode = "FlatFace"
add_polygon(sketch7, [(17.4625, -2.413), (17.4625, -3.175), (14.605, -3.175)])  # lines 0-2
add_polygon(sketch7, [(14.605, 4.612052), (17.4625, 4.612052), (17.4625, 3.556)])  # lines 3-5
add_polygon(sketch7, [(14.35295, 7.493), (17.4625, 7.493), (17.4625, 4.612052), (14.605, 4.612052)])  # lines 6-9
sketch7.addConstraint([
    Sketcher.Constraint("Vertical", 0),
    Sketcher.Constraint("Horizontal", 1),
    Sketcher.Constraint("Horizontal", 3),
    Sketcher.Constraint("Vertical", 4),
    Sketcher.Constraint("Horizontal", 6),
    Sketcher.Constraint("Vertical", 7),
    Sketcher.Constraint("Horizontal", 8),
    Sketcher.Constraint("Coincident", 7, 2, 3, 2),
    Sketcher.Constraint("Vertical", 2, 2, 3, 2),
    Sketcher.Constraint("Vertical", 1, 2, 5, 2),
    Sketcher.Constraint("Vertical", 1, 2, 8, 2),
    Sketcher.Constraint("Angle", 9, Q("95 deg")),
    Sketcher.Constraint("DistanceY", 0, 2, 0, 1, Q("0.03 in")),
    Sketcher.Constraint("DistanceY", -1, 1, 4, 2, Q("0.14 in")),
    Sketcher.Constraint("DistanceY", 2, 2, 6, 2, Q("0.39 in")),
    Sketcher.Constraint("DistanceX", 1, 2, 1, 1, Q("0.1125 in")),
    Sketcher.Constraint("DistanceX", -1, 1, 0, 2, Q("0.6875 in")),
    Sketcher.Constraint("DistanceY", 0, 2, -1, 1, Q("0.125 in")),
    Sketcher.Constraint("Distance", 5, Q("3.0464 mm")),
])
groove = body.newObject("PartDesign::Groove", "Groove")
groove.Profile = sketch7
groove.ReferenceAxis = (sketch7, ["V_Axis"])
groove.Angle = 360

# Sketch on XY plane
sketch8 = body.newObject("Sketcher::SketchObject", "Sketch007")
sketch8.AttachmentSupport = (doc.getObject("XY_Plane"), [""])
sketch8.MapMode = "FlatFace"
sketch8.AttachmentOffset = App.Placement(V(0, 0, 0.245 * 25.4), App.Rotation())
sketch8.addGeometry(Part.Circle(V(0, 0, 0), V(0, 0, 1), 1.778), False)
sketch8.addConstraint([
    Sketcher.Constraint("Coincident", 0, 3, -1, 1),
    Sketcher.Constraint("Diameter", 0, Q("0.14 in")),
])
pocket1 = body.newObject("PartDesign::Pocket", "Pocket")
pocket1.Profile = sketch8
pocket1.Type = "ThroughAll"

# Sketch on XY plane
sketch9 = body.newObject("Sketcher::SketchObject", "Sketch008")
sketch9.AttachmentSupport = (doc.getObject("XY_Plane"), [""])
sketch9.MapMode = "FlatFace"
sketch9.AttachmentOffset = App.Placement(V(0, 0, 0.045 * 25.4), App.Rotation())
sketch9.addGeometry([
    Part.Circle(V(0, 0, 0), V(0, 0, 1), 13.208),
    Part.Circle(V(0, 0, 0), V(0, 0, 1), 11.1125),
], False)
sketch9.addConstraint([
    Sketcher.Constraint("Coincident", 0, 3, -1, 1),
    Sketcher.Constraint("Coincident", 1, 3, -1, 1),
    Sketcher.Constraint("Diameter", 0, Q("1.04 in")),
    Sketcher.Constraint("Diameter", 1, Q("0.875 in")),
])
pad7 = body.newObject("PartDesign::Pad", "Pad006")
pad7.Profile = sketch9
pad7.Length = Q("0.065 in")

doc.recompute()
